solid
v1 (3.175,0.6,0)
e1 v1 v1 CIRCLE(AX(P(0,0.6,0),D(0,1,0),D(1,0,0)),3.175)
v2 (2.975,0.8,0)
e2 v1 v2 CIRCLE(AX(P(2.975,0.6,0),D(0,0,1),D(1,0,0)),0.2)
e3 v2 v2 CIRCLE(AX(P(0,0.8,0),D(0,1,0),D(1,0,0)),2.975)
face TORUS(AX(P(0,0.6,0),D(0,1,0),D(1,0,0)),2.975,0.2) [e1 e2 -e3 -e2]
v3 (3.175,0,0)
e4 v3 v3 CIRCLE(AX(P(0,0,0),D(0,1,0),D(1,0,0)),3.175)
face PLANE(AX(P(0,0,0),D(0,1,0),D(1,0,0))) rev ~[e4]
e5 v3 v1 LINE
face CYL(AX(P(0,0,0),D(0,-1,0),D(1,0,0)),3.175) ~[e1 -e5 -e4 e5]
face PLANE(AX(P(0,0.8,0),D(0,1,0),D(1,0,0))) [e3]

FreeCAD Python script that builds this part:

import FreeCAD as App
import Part
import Sketcher

V = App.Vector
Q = App.Units.Quantity


def edges_at(feature, points):
    """Names of the edges that pass closest to the given points."""
    edges = feature.Shape.Edges
    near = lambda p: min(range(len(edges)), key=lambda i: edges[i].distToShape(Part.Vertex(*p))[0])
    return sorted({f"Edge{near(p) + 1}" for p in points})

doc = App.newDocument("Part")
params = doc.addObject("Spreadsheet::Sheet", "Params")
for row, (alias, value) in enumerate([
    ("sketch1_diameter", "6.35 mm"),
    ("pad1_length", "0.8 mm"),
    ("fillet_radius", "0.2 mm"),
], start=1):
    params.set(f"A{row}", alias)
    params.set(f"B{row}", "=" + value)
    params.setAlias(f"B{row}", alias)

body = doc.addObject("PartDesign::Body", "Body")

# Sketch on XZ plane
sketch1 = body.newObject("Sketcher::SketchObject", "Sketch")
sketch1.AttachmentSupport = (doc.getObject("XZ_Plane"), [""])
sketch1.MapMode = "FlatFace"
sketch1.addGeometry(Part.Circle(V(0, 0, 0), V(0, 0, 1), 3.175), False)
sketch1.addConstraint(Sketcher.Constraint("Coincident", 0, 3, -1, 1))
sketch1.addConstraint(Sketcher.Constraint("Diameter", 0, Q("6.35 mm")))
sketch1.setExpression("Constraints[1]", "Params.sketch1_diameter")
pad1 = body.newObject("PartDesign::Pad", "Pad")
pad1.Profile = sketch1
pad1.setExpression("Length", "Params.pad1_length")
pad1.Reversed = True
doc.recompute()

fillet = body.newObject("PartDesign::Fillet", "Fillet")
fillet.Base = (pad1, edges_at(pad1, [(-3.175, 0.8, 0)]))
fillet.setExpression("Radius", "Params.fillet_radius")

doc.recompute()
